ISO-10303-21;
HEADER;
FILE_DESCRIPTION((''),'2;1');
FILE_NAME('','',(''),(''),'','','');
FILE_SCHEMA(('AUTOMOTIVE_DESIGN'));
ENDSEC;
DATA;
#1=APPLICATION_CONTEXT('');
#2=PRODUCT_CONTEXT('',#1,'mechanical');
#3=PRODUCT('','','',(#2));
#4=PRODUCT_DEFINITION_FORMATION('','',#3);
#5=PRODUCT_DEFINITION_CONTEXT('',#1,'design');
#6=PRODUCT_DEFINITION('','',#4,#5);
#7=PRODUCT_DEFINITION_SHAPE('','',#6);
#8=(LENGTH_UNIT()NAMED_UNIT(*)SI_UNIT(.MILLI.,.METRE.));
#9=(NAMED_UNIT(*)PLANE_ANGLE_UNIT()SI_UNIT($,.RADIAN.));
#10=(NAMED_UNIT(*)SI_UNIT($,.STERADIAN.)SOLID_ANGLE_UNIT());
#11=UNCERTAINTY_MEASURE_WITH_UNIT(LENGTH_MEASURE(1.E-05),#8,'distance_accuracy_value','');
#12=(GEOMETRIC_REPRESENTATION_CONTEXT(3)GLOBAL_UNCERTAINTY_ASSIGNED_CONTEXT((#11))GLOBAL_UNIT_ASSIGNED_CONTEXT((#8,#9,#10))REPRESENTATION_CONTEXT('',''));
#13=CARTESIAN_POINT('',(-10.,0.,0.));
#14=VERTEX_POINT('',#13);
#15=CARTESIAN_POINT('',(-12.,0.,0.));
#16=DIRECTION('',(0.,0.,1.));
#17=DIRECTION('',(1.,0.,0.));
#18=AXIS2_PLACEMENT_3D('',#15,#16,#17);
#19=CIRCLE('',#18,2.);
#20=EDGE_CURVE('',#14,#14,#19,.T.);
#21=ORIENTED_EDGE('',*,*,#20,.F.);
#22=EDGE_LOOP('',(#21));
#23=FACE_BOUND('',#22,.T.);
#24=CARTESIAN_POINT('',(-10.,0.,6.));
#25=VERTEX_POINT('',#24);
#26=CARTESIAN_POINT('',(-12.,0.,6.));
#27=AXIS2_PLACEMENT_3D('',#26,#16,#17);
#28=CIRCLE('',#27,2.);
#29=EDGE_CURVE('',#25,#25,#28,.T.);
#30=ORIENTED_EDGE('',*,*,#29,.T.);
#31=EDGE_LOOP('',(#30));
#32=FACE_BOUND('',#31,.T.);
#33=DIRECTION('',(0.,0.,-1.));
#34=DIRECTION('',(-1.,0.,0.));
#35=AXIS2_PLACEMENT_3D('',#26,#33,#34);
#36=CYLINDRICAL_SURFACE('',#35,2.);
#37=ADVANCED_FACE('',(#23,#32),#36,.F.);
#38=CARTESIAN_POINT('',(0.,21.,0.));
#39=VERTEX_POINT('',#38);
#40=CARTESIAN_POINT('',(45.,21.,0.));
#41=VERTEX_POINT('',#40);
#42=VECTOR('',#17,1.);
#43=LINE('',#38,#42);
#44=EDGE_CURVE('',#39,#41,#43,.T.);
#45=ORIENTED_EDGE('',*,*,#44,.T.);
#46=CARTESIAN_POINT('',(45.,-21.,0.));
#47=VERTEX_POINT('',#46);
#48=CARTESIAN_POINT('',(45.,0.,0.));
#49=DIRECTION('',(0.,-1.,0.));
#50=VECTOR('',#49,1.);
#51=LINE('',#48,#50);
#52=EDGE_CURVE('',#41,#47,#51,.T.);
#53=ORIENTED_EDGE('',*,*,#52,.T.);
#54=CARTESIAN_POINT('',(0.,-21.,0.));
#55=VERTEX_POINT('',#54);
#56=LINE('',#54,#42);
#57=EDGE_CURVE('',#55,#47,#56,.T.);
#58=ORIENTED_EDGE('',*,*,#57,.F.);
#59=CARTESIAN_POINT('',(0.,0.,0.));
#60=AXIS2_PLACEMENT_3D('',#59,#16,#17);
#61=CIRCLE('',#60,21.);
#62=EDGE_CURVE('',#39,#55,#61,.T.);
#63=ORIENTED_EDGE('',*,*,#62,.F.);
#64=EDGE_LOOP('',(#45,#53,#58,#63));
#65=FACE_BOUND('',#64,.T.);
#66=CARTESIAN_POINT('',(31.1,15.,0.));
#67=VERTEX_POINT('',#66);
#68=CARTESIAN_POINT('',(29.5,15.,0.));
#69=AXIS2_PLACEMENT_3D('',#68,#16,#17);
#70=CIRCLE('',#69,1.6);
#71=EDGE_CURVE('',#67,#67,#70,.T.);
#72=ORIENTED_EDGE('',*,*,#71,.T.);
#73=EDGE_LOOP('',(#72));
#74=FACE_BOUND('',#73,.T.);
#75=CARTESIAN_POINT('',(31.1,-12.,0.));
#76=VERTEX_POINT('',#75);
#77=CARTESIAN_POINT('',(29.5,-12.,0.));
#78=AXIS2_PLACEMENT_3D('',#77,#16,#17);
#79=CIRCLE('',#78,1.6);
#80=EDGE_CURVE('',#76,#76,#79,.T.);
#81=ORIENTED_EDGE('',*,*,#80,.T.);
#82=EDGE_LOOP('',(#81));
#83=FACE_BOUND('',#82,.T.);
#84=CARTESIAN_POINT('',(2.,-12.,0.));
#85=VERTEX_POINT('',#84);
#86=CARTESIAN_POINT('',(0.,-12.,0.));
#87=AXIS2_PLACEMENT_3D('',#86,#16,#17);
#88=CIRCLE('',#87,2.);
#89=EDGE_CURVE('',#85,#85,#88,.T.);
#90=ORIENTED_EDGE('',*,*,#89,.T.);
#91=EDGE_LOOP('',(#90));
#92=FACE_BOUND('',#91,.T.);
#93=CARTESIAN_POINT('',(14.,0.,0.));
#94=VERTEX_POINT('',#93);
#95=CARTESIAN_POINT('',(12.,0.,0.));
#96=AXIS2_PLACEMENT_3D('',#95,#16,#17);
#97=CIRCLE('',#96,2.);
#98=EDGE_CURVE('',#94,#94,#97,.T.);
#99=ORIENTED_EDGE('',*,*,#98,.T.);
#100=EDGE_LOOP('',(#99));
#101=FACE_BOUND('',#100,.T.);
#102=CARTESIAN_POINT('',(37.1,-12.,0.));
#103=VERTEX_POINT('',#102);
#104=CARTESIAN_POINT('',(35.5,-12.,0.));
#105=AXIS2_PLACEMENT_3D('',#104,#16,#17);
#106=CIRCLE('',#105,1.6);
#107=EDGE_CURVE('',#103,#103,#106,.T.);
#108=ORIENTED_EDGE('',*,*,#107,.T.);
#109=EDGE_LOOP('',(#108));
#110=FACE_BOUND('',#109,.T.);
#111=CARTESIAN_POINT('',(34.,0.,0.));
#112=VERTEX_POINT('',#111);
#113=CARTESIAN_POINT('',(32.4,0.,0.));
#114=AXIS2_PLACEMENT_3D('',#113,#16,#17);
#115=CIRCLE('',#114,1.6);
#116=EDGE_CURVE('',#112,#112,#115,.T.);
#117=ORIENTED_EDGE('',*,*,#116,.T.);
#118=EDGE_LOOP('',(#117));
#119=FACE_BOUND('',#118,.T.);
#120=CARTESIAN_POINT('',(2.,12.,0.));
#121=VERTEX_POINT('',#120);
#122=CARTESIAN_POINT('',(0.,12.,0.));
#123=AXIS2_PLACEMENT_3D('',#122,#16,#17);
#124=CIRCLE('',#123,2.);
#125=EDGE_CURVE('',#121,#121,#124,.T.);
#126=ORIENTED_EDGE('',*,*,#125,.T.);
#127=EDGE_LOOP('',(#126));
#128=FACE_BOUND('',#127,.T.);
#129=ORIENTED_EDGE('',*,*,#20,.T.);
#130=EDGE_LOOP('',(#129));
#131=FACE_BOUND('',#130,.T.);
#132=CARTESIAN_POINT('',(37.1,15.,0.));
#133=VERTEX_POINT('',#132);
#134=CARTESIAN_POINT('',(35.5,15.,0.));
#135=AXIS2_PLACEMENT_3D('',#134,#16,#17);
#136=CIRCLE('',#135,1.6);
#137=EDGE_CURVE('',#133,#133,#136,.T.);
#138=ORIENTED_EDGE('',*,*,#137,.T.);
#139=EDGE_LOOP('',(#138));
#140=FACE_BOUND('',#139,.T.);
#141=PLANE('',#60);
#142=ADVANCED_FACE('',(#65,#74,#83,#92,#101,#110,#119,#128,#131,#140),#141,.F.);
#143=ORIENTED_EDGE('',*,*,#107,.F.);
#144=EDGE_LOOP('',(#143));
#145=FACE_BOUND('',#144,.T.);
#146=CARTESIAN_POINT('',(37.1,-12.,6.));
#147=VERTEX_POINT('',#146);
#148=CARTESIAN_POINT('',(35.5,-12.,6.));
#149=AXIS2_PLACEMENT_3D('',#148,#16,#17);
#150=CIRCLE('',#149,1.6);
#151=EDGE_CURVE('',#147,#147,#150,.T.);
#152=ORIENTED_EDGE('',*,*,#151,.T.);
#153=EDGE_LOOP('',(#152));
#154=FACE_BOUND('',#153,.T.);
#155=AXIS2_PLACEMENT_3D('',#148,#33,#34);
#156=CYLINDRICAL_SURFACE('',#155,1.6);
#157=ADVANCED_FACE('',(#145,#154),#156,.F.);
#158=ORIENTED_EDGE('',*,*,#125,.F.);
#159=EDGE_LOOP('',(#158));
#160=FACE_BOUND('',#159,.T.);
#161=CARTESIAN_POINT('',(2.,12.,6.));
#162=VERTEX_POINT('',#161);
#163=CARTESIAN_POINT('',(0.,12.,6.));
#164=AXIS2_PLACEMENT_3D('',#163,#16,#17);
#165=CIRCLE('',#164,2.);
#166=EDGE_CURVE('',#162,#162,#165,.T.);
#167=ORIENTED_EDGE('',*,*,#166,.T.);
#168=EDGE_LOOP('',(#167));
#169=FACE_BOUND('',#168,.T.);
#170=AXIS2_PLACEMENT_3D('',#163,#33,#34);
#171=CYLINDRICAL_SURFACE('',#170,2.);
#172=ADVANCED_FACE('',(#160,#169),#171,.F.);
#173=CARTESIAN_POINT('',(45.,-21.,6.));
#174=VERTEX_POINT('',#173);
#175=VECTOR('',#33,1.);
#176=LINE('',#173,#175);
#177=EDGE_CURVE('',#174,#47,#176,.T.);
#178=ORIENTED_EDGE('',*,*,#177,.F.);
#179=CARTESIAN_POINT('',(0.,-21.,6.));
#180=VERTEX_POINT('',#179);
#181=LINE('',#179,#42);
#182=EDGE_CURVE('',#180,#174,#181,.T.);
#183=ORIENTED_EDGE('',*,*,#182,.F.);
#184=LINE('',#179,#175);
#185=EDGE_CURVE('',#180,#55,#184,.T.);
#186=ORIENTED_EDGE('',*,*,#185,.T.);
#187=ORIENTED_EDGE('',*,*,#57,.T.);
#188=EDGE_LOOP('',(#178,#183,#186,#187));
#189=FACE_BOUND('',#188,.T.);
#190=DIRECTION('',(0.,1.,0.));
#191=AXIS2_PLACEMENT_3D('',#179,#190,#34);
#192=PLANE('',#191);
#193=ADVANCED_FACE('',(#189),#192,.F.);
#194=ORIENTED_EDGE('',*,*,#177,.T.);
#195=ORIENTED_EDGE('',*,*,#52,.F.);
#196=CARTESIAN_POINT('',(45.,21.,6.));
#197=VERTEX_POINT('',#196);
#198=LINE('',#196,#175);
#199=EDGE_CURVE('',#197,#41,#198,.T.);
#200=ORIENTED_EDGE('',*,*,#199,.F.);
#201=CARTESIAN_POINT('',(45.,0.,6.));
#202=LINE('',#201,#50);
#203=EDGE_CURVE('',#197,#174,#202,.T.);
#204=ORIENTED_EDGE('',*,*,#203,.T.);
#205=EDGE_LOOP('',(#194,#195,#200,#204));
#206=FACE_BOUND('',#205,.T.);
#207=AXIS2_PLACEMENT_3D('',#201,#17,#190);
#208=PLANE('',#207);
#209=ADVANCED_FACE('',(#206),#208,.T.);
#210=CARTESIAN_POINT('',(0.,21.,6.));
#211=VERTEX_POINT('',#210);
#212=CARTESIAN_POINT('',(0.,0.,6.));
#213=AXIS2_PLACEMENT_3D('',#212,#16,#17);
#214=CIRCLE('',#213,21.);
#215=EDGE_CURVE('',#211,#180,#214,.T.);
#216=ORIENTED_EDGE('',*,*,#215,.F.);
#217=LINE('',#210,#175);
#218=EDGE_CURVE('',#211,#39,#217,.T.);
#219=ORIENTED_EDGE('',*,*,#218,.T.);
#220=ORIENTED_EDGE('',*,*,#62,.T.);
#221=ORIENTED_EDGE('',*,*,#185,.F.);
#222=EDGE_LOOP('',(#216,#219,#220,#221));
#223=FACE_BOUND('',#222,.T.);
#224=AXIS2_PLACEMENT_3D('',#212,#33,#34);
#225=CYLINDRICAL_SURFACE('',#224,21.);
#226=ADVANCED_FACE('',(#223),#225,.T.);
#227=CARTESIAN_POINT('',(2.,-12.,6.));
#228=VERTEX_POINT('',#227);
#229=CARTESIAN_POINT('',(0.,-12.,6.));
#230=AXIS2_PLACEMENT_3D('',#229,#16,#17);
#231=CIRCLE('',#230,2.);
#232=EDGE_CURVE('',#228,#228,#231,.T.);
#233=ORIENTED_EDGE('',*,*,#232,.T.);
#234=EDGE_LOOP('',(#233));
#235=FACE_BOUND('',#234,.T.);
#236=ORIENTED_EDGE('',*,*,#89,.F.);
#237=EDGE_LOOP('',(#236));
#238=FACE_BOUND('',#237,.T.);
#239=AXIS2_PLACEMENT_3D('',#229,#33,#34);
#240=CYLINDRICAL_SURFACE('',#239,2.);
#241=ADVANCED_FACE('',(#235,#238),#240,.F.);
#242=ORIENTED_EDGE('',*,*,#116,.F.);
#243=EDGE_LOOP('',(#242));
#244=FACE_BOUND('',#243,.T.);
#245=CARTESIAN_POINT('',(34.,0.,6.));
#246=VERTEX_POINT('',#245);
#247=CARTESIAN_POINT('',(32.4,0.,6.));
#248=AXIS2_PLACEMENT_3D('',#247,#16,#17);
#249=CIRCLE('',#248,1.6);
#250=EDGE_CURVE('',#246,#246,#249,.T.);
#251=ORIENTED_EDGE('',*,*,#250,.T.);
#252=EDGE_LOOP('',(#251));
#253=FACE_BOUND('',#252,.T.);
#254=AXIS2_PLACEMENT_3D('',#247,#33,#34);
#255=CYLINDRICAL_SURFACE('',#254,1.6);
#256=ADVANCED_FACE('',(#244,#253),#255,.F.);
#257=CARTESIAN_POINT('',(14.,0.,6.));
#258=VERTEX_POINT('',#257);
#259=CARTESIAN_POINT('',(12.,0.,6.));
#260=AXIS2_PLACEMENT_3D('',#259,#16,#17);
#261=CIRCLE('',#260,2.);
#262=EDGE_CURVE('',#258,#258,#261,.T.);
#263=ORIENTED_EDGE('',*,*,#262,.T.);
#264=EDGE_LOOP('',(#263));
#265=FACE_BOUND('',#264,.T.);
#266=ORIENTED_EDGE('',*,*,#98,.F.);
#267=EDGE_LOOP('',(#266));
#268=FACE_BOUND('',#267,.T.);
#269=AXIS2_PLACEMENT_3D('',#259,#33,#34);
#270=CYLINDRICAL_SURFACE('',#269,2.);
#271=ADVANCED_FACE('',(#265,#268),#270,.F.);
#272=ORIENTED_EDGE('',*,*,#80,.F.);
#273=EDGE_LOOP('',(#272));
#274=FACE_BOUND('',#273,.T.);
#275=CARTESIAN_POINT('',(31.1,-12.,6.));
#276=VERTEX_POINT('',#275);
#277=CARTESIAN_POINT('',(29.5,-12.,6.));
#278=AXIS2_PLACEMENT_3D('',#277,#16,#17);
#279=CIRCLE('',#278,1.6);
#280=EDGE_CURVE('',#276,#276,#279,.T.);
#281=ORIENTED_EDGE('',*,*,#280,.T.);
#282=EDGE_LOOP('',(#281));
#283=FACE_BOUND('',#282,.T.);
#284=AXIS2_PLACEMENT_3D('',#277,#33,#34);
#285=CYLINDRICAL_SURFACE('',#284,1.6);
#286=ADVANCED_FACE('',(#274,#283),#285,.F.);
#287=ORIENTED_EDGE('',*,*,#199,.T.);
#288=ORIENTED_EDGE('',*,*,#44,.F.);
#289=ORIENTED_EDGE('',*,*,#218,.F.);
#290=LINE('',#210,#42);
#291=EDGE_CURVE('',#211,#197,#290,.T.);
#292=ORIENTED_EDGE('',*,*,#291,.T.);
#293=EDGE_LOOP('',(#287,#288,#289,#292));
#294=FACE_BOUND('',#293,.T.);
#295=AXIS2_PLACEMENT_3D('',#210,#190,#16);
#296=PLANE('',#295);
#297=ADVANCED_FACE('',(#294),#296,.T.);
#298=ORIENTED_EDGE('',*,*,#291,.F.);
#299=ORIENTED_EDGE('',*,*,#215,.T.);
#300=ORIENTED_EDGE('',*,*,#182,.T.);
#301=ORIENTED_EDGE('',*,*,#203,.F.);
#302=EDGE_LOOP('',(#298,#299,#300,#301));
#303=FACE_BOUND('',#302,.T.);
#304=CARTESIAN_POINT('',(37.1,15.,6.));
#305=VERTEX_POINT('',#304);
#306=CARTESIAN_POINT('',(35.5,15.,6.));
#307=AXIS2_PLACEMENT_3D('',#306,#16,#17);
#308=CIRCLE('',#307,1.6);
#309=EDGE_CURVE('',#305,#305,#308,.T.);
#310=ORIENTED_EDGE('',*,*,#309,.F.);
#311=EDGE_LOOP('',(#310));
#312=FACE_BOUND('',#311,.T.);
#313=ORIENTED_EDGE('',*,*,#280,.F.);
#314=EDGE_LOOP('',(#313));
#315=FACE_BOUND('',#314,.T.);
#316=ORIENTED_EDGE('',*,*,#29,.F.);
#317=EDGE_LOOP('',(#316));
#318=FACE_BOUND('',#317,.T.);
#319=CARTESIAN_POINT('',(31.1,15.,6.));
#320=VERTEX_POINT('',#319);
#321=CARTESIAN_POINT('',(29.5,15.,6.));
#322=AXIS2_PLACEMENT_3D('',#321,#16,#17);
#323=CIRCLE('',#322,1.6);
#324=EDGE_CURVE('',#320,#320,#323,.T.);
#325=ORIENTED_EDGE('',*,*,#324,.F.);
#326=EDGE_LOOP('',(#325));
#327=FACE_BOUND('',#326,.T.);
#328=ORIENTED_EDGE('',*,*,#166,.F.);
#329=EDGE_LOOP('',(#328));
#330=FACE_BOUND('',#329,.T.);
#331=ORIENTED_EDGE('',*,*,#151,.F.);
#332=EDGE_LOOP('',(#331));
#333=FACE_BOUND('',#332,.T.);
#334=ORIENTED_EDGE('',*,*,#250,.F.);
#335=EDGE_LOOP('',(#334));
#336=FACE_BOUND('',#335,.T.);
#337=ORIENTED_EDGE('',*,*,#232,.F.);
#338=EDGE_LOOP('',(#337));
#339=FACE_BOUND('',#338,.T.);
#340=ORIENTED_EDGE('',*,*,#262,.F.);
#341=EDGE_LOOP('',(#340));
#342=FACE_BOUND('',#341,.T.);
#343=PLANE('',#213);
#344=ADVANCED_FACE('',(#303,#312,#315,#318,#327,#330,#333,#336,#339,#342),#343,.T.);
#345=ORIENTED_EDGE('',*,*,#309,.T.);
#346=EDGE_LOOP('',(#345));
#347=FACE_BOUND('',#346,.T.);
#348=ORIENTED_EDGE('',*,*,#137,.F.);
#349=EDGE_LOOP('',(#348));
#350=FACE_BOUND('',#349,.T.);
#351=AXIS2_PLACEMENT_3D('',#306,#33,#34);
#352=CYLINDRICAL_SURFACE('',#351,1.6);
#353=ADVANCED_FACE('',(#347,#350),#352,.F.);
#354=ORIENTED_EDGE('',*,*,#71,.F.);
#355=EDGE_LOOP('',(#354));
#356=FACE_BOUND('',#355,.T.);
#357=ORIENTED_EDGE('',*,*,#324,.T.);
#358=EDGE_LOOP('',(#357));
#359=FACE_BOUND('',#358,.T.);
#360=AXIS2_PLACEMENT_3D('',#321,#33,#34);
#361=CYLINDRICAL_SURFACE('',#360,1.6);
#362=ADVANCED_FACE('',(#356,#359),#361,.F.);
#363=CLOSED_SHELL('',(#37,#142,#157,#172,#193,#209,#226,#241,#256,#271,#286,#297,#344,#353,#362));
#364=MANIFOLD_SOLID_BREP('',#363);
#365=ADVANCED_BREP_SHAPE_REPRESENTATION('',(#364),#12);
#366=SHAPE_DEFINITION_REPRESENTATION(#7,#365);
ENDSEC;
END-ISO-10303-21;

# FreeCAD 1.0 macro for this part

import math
import FreeCAD as App
import Part
import Sketcher
from FreeCAD import Vector

doc = App.newDocument("Part")
body = doc.addObject("PartDesign::Body", "Body")

# Sketch on XY plane
sketch1 = body.newObject("Sketcher::SketchObject", "Sketch")
sketch1.AttachmentSupport = (doc.getObject("XY_Plane"), [""])
sketch1.MapMode = "FlatFace"
sketch1.addGeometry([
    Part.ArcOfCircle(Part.Circle(Vector(0, 0, 0), Vector(0, 0, 1), 21), math.radians(90), math.radians(270)),  # 0
    Part.LineSegment(Vector(0, -21, 0), Vector(45, -21, 0)),  # 1
    Part.LineSegment(Vector(45, -21, 0), Vector(45, 21, 0)),  # 2
    Part.LineSegment(Vector(45, 21, 0), Vector(0, 21, 0)),  # 3
    Part.ArcOfCircle(Part.Circle(Vector(0, -12, 0), Vector(0, 0, 1), 2), math.radians(175), math.radians(270)),  # 4
    Part.ArcOfCircle(Part.Circle(Vector(0, -12, 0), Vector(0, 0, 1), 2), math.radians(90), math.radians(175)),  # 5
    Part.ArcOfCircle(Part.Circle(Vector(0, -12, 0), Vector(0, 0, 1), 2), math.radians(5), math.radians(90)),  # 6
    Part.ArcOfCircle(Part.Circle(Vector(0, -12, 0), Vector(0, 0, 1), 2), math.radians(0), math.radians(4.78)),  # 7
    Part.ArcOfCircle(Part.Circle(Vector(0, -12, 0), Vector(0, 0, 1), 2), math.radians(-90), math.radians(0)),  # 8
    Part.ArcOfCircle(Part.Circle(Vector(-12, 0, 0), Vector(0, 0, 1), 2), math.radians(85), math.radians(275)),  # 9
    Part.ArcOfCircle(Part.Circle(Vector(-12, 0, 0), Vector(0, 0, 1), 2), math.radians(0), math.radians(85)),  # 10
    Part.ArcOfCircle(Part.Circle(Vector(-12, 0, 0), Vector(0, 0, 1), 2), math.radians(-85), math.radians(0)),  # 11
    Part.ArcOfCircle(Part.Circle(Vector(0, 12, 0), Vector(0, 0, 1), 2), math.radians(90), math.radians(185)),  # 12
    Part.ArcOfCircle(Part.Circle(Vector(0, 12, 0), Vector(0, 0, 1), 2), math.radians(0), math.radians(90)),  # 13
    Part.ArcOfCircle(Part.Circle(Vector(0, 12, 0), Vector(0, 0, 1), 2), math.radians(-4.78), math.radians(0)),  # 14
    Part.ArcOfCircle(Part.Circle(Vector(0, 12, 0), Vector(0, 0, 1), 2), math.radians(-90), math.radians(-5)),  # 15
    Part.ArcOfCircle(Part.Circle(Vector(0, 12, 0), Vector(0, 0, 1), 2), math.radians(-175), math.radians(-90)),  # 16
    Part.ArcOfCircle(Part.Circle(Vector(12, 0, 0), Vector(0, 0, 1), 2), math.radians(0), math.radians(95)),  # 17
    Part.ArcOfCircle(Part.Circle(Vector(12, 0, 0), Vector(0, 0, 1), 2), math.radians(-95), math.radians(0)),  # 18
    Part.ArcOfCircle(Part.Circle(Vector(12, 0, 0), Vector(0, 0, 1), 2), math.radians(95), math.radians(265)),  # 19
    Part.Circle(Vector(35.5, 15, 0), Vector(0, 0, 1), 1.6),  # 20
    Part.Circle(Vector(29.5, -12, 0), Vector(0, 0, 1), 1.6),  # 21
    Part.Circle(Vector(32.4, 0, 0), Vector(0, 0, 1), 1.6),  # 22
    Part.Circle(Vector(35.5, -12, 0), Vector(0, 0, 1), 1.6),  # 23
    Part.Circle(Vector(29.5, 15, 0), Vector(0, 0, 1), 1.6),  # 24
], False)
sketch1.addConstraint([
    Sketcher.Constraint("Tangent", 0, 2, 1, 1),
    Sketcher.Constraint("Coincident", 1, 2, 2, 1),
    Sketcher.Constraint("Coincident", 2, 2, 3, 1),
    Sketcher.Constraint("Tangent", 3, 2, 0, 1),
    Sketcher.Constraint("Tangent", 4, 1, 5, 2),
    Sketcher.Constraint("Tangent", 5, 1, 6, 2),
    Sketcher.Constraint("Tangent", 6, 1, 7, 2),
    Sketcher.Constraint("Tangent", 7, 1, 8, 2),
    Sketcher.Constraint("Tangent", 8, 1, 4, 2),
    Sketcher.Constraint("Tangent", 9, 1, 10, 2),
    Sketcher.Constraint("Tangent", 10, 1, 11, 2),
    Sketcher.Constraint("Tangent", 11, 1, 9, 2),
    Sketcher.Constraint("Tangent", 12, 1, 13, 2),
    Sketcher.Constraint("Tangent", 13, 1, 14, 2),
    Sketcher.Constraint("Tangent", 14, 1, 15, 2),
    Sketcher.Constraint("Tangent", 15, 1, 16, 2),
    Sketcher.Constraint("Tangent", 16, 1, 12, 2),
    Sketcher.Constraint("Tangent", 17, 1, 18, 2),
    Sketcher.Constraint("Tangent", 18, 1, 19, 2),
    Sketcher.Constraint("Tangent", 19, 1, 17, 2),
    Sketcher.Constraint("Horizontal", 1),
    Sketcher.Constraint("Vertical", 2),
    Sketcher.Constraint("Horizontal", 3),
    Sketcher.Constraint("Coincident", 0, 3, -1, 1),
    Sketcher.Constraint("Coincident", 6, 3, 4, 3),
    Sketcher.Constraint("Coincident", 14, 3, 12, 3),
    Sketcher.Constraint("Equal", 8, 9),
    Sketcher.Constraint("Equal", 11, 12),
    Sketcher.Constraint("Equal", 16, 17),
    Sketcher.Constraint("Equal", 20, 21),
    Sketcher.Constraint("Equal", 21, 22),
    Sketcher.Constraint("Equal", 22, 23),
    Sketcher.Constraint("Equal", 23, 24),
    Sketcher.Constraint("Symmetric", 4, 3, 12, 3, -1, 1),
    Sketcher.Constraint("Symmetric", 9, 3, 17, 3, -1, 1),
    Sketcher.Constraint("Symmetric", 4, 1, 6, 1, -2),
    Sketcher.Constraint("Symmetric", 11, 1, 18, 1, -2),
    Sketcher.Constraint("PointOnObject", 22, 3, -1),
    Sketcher.Constraint("PointOnObject", 5, 1, -2),
    Sketcher.Constraint("PointOnObject", 8, 1, -2),
    Sketcher.Constraint("PointOnObject", 10, 1, -1),
    Sketcher.Constraint("PointOnObject", 12, 1, -2),
    Sketcher.Constraint("PointOnObject", 15, 1, -2),
    Sketcher.Constraint("PointOnObject", 17, 1, -1),
    Sketcher.Constraint("Horizontal", 8, 3, 21, 3),
    Sketcher.Constraint("Horizontal", 21, 3, 23, 3),
    Sketcher.Constraint("Horizontal", 20, 3, 24, 3),
    Sketcher.Constraint("Horizontal", 23, 3, 7, 1),
    Sketcher.Constraint("Horizontal", 16, 3, 13, 1),
    Sketcher.Constraint("Horizontal", 14, 1, 16, 1),
    Sketcher.Constraint("Horizontal", 9, 1, 19, 1),
    Sketcher.Constraint("Vertical", 20, 3, 23, 3),
    Sketcher.Constraint("Vertical", 21, 3, 24, 3),
    Sketcher.Constraint("Vertical", 9, 1, 11, 1),
    Sketcher.Constraint("Vertical", 6, 1, 14, 1),
    Sketcher.Constraint("Radius", 0, 21.0),
    Sketcher.Constraint("Radius", 4, 2.0),
    Sketcher.Constraint("Diameter", 20, 3.2),
    Sketcher.Constraint("DistanceX", 1, 1, 1, 2, 45.0),
    Sketcher.Constraint("DistanceY", 4, 3, -1, 1, 12.0),
    Sketcher.Constraint("DistanceX", 9, 3, -1, 1, 12.0),
    Sketcher.Constraint("DistanceY", -1, 1, 20, 3, 15.0),
    Sketcher.Constraint("DistanceX", 21, 3, 20, 3, 6.0),
    Sketcher.Constraint("DistanceX", -1, 1, 20, 3, 35.5),
    Sketcher.Constraint("DistanceX", -1, 1, 22, 3, 32.4),
    Sketcher.Constraint("DistanceX", 4, 1, -1, 1, 1.993043),
    Sketcher.Constraint("DistanceX", 9, 1, -1, 1, 11.833333),
])
pad1 = body.newObject("PartDesign::Pad", "Pad")
pad1.Profile = sketch1
pad1.Length = 6

doc.recompute()
